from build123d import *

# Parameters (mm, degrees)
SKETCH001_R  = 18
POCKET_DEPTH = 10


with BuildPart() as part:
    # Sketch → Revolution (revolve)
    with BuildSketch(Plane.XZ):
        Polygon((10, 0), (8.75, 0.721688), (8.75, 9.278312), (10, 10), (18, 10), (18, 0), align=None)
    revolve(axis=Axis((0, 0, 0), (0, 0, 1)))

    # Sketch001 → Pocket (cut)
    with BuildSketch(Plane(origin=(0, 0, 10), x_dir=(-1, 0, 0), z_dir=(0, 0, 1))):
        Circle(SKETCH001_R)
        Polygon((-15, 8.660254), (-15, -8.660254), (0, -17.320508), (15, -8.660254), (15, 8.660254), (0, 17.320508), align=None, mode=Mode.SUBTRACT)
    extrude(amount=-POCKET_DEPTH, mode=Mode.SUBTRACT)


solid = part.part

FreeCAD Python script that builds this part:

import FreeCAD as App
import Part
import Sketcher
from FreeCAD import Vector
Q = App.Units.Quantity

doc = App.newDocument("Part")
body = doc.addObject("PartDesign::Body", "Body")

# Sketch on XZ plane
sketch1 = body.newObject("Sketcher::SketchObject", "Sketch")
sketch1.AttachmentSupport = (doc.getObject("XZ_Plane"), [""])
sketch1.MapMode = "FlatFace"
sketch1.addGeometry(Part.LineSegment(Vector(8.8, 0.7, 0), Vector(10, 0, 0)), False)
sketch1.addGeometry(Part.LineSegment(Vector(10, 0, 0), Vector(18, 0, 0)), False)
sketch1.addGeometry(Part.LineSegment(Vector(18, 0, 0), Vector(18, 10, 0)), False)
sketch1.addGeometry(Part.LineSegment(Vector(18, 10, 0), Vector(10, 10, 0)), False)
sketch1.addGeometry(Part.LineSegment(Vector(10, 10, 0), Vector(8.8, 9.3, 0)), False)
sketch1.addGeometry(Part.LineSegment(Vector(8.8, 9.3, 0), Vector(8.8, 0.7, 0)), False)
sketch1.addConstraint(Sketcher.Constraint("Coincident", 0, 2, 1, 1))
sketch1.addConstraint(Sketcher.Constraint("Coincident", 1, 2, 2, 1))
sketch1.addConstraint(Sketcher.Constraint("Coincident", 2, 2, 3, 1))
sketch1.addConstraint(Sketcher.Constraint("Coincident", 3, 2, 4, 1))
sketch1.addConstraint(Sketcher.Constraint("Coincident", 4, 2, 5, 1))
sketch1.addConstraint(Sketcher.Constraint("Coincident", 5, 2, 0, 1))
sketch1.addConstraint(Sketcher.Constraint("Horizontal", 1))
sketch1.addConstraint(Sketcher.Constraint("Vertical", 2))
sketch1.addConstraint(Sketcher.Constraint("Horizontal", 3))
sketch1.addConstraint(Sketcher.Constraint("Vertical", 5))
sketch1.addConstraint(Sketcher.Constraint("PointOnObject", 0, 2, -1))
sketch1.addConstraint(Sketcher.Constraint("Vertical", 0, 2, 3, 2))
sketch1.addConstraint(Sketcher.Constraint("Equal", 0, 4))
sketch1.addConstraint(Sketcher.Constraint("DistanceX", 1, 1, 1, 2, Q("8 mm")))
sketch1.addConstraint(Sketcher.Constraint("DistanceY", 2, 1, 2, 2, Q("10 mm")))
sketch1.addConstraint(Sketcher.Constraint("Angle", 0, Q("-30.000006 deg")))
sketch1.addConstraint(Sketcher.Constraint("DistanceX", -1, 1, 0, 2, Q("10 mm")))
sketch1.addConstraint(Sketcher.Constraint("DistanceX", -1, 1, 4, 2, Q("8.75 mm")))
revolution = body.newObject("PartDesign::Revolution", "Revolution")
revolution.Profile = sketch1
revolution.ReferenceAxis = (sketch1, ["V_Axis"])
revolution.Angle = 360

# Sketch on XY plane
sketch2 = body.newObject("Sketcher::SketchObject", "Sketch001")
sketch2.AttachmentSupport = (doc.getObject("XY_Plane"), [""])
sketch2.MapMode = "FlatFace"
sketch2.AttachmentOffset = App.Placement(Vector(0, 0, 10), App.Rotation())
sketch2.addGeometry(Part.Circle(Vector(0, 0, 0), Vector(0, 0, 1), 18), False)
sketch2.addGeometry(Part.LineSegment(Vector(15, 9, 0), Vector(15, -9, 0)), False)
sketch2.addGeometry(Part.LineSegment(Vector(15, -9, 0), Vector(0, -17, 0)), False)
sketch2.addGeometry(Part.LineSegment(Vector(0, -17, 0), Vector(-15, -9, 0)), False)
sketch2.addGeometry(Part.LineSegment(Vector(-15, -9, 0), Vector(-15, 9, 0)), False)
sketch2.addGeometry(Part.LineSegment(Vector(-15, 9, 0), Vector(0, 17, 0)), False)
sketch2.addGeometry(Part.LineSegment(Vector(0, 17, 0), Vector(15, 9, 0)), False)
sketch2.addConstraint(Sketcher.Constraint("Coincident", 1, 2, 2, 1))
sketch2.addConstraint(Sketcher.Constraint("Coincident", 2, 2, 3, 1))
sketch2.addConstraint(Sketcher.Constraint("Coincident", 3, 2, 4, 1))
sketch2.addConstraint(Sketcher.Constraint("Coincident", 4, 2, 5, 1))
sketch2.addConstraint(Sketcher.Constraint("Coincident", 5, 2, 6, 1))
sketch2.addConstraint(Sketcher.Constraint("Coincident", 6, 2, 1, 1))
sketch2.addConstraint(Sketcher.Constraint("Vertical", 1))
sketch2.addConstraint(Sketcher.Constraint("Vertical", 4))
sketch2.addConstraint(Sketcher.Constraint("Coincident", 0, 3, -1, 1))
sketch2.addConstraint(Sketcher.Constraint("Symmetric", 1, 2, 4, 2, -1, 1))
sketch2.addConstraint(Sketcher.Constraint("Symmetric", 2, 2, 5, 2, -1, 1))
sketch2.addConstraint(Sketcher.Constraint("PointOnObject", 2, 2, -2))
sketch2.addConstraint(Sketcher.Constraint("Parallel", 3, 6))
sketch2.addConstraint(Sketcher.Constraint("Horizontal", 1, 2, 3, 2))
sketch2.addConstraint(Sketcher.Constraint("Diameter", 0, Q("36 mm")))
sketch2.addConstraint(Sketcher.Constraint("Angle", 2, Q("-150 deg")))
sketch2.addConstraint(Sketcher.Constraint("DistanceX", -1, 1, 1, 2, Q("15 mm")))
sketch2.addConstraint(Sketcher.Constraint("DistanceY", 1, 2, 1, 1, Q("17.320508 mm")))
pocket1 = body.newObject("PartDesign::Pocket", "Pocket")
pocket1.Profile = sketch2
pocket1.Length = 10

doc.recompute()
